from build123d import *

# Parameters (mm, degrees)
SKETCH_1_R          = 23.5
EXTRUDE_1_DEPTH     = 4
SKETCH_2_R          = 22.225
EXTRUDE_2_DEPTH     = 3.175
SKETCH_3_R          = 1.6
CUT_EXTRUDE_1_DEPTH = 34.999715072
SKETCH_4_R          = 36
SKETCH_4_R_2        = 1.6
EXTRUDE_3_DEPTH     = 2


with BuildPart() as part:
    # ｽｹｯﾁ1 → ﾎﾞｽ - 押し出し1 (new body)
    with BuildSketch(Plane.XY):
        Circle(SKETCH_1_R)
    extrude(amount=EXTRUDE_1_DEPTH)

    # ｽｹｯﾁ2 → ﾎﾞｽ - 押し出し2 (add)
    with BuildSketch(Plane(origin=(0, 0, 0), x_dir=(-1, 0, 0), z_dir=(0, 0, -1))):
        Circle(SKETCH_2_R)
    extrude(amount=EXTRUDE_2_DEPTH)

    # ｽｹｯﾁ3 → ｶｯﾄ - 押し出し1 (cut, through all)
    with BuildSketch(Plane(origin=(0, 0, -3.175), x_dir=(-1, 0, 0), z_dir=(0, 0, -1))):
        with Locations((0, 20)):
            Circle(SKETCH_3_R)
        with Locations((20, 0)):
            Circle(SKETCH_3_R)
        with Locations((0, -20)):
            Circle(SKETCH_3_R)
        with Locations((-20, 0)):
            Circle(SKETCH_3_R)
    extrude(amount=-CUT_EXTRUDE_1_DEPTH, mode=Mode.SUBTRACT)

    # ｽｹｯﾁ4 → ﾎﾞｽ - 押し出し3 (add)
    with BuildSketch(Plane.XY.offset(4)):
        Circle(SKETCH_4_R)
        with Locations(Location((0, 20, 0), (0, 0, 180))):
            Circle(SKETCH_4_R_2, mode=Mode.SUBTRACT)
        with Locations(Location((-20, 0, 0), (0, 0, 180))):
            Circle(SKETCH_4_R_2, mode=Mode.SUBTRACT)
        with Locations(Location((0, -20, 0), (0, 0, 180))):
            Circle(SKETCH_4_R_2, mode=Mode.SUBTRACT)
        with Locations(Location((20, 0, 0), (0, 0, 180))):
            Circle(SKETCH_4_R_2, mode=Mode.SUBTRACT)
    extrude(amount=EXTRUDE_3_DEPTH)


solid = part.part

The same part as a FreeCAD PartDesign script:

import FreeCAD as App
import Part
import Sketcher
from FreeCAD import Vector

doc = App.newDocument("Part")
body = doc.addObject("PartDesign::Body", "Body")

# Sketch on XY plane
sketch1 = doc.addObject("Sketcher::SketchObject", "Sketch")
body.addObject(sketch1)
sketch1.AttachmentSupport = (doc.XY_Plane, [""])
sketch1.MapMode = "FlatFace"
sketch1.addGeometry(Part.Circle(Vector(0, 0, 0), Vector(0, 0, 1), 24), False)
sketch1.addConstraint([
    Sketcher.Constraint("Coincident", 0, 3, -1, 1),
    Sketcher.Constraint("Diameter", 0, 47.0),
])
pad1 = doc.addObject("PartDesign::Pad", "Pad")
body.addObject(pad1)
pad1.Profile = sketch1
pad1.Length = 4

# Sketch on XY plane
sketch2 = doc.addObject("Sketcher::SketchObject", "Sketch001")
body.addObject(sketch2)
sketch2.AttachmentSupport = (doc.XY_Plane, [""])
sketch2.MapMode = "FlatFace"
sketch2.addGeometry(Part.Circle(Vector(0, 0, 0), Vector(0, 0, 1), 22), False)
sketch2.addConstraint([
    Sketcher.Constraint("Coincident", 0, 3, -1, 1),
    Sketcher.Constraint("Diameter", 0, 44.45),
])
pad2 = doc.addObject("PartDesign::Pad", "Pad001")
body.addObject(pad2)
pad2.Profile = sketch2
pad2.Length = 3.175
pad2.Reversed = True

# Sketch on XY plane
sketch3 = doc.addObject("Sketcher::SketchObject", "Sketch002")
body.addObject(sketch3)
sketch3.AttachmentSupport = (doc.XY_Plane, [""])
sketch3.MapMode = "FlatFace"
sketch3.AttachmentOffset = App.Placement(Vector(0, 0, -3.175), App.Rotation())
sketch3.addGeometry([
    Part.Circle(Vector(0, 20, 0), Vector(0, 0, 1), 1.6),
    Part.Circle(Vector(-20, 0, 0), Vector(0, 0, 1), 1.6),
    Part.Circle(Vector(0, -20, 0), Vector(0, 0, 1), 1.6),
    Part.Circle(Vector(20, 0, 0), Vector(0, 0, 1), 1.6),
], False)
sketch3.addConstraint([
    Sketcher.Constraint("Equal", 0, 1),
    Sketcher.Constraint("Equal", 1, 2),
    Sketcher.Constraint("Equal", 2, 3),
    Sketcher.Constraint("Symmetric", 0, 3, 2, 3, -1, 1),
    Sketcher.Constraint("Symmetric", 1, 3, 3, 3, -1, 1),
    Sketcher.Constraint("PointOnObject", 0, 3, -2),
    Sketcher.Constraint("PointOnObject", 1, 3, -1),
    Sketcher.Constraint("Diameter", 0, 3.2),
    Sketcher.Constraint("DistanceY", -1, 1, 0, 3, 20.0),
    Sketcher.Constraint("DistanceX", 1, 3, -1, 1, 20.0),
])
pocket1 = doc.addObject("PartDesign::Pocket", "Pocket")
body.addObject(pocket1)
pocket1.Profile = sketch3
pocket1.Type = "ThroughAll"
pocket1.Reversed = True

# Sketch on XY plane
sketch4 = doc.addObject("Sketcher::SketchObject", "Sketch003")
body.addObject(sketch4)
sketch4.AttachmentSupport = (doc.XY_Plane, [""])
sketch4.MapMode = "FlatFace"
sketch4.AttachmentOffset = App.Placement(Vector(0, 0, 4), App.Rotation())
sketch4.addGeometry([
    Part.Circle(Vector(0, 0, 0), Vector(0, 0, 1), 36),  # 0
    Part.Circle(Vector(0, -20, 0), Vector(0, 0, 1), 1.6),  # 1
    Part.Circle(Vector(-20, 0, 0), Vector(0, 0, 1), 1.6),  # 2
    Part.Circle(Vector(20, 0, 0), Vector(0, 0, 1), 1.6),  # 3
    Part.Circle(Vector(0, 20, 0), Vector(0, 0, 1), 1.6),  # 4
], False)
sketch4.addConstraint([
    Sketcher.Constraint("Coincident", 0, 3, -1, 1),
    Sketcher.Constraint("Equal", 1, 2),
    Sketcher.Constraint("Equal", 2, 3),
    Sketcher.Constraint("Equal", 3, 4),
    Sketcher.Constraint("Symmetric", 2, 3, 3, 3, -1, 1),
    Sketcher.Constraint("Symmetric", 1, 3, 4, 3, -1, 1),
    Sketcher.Constraint("PointOnObject", 1, 3, -2),
    Sketcher.Constraint("PointOnObject", 2, 3, -1),
    Sketcher.Constraint("Diameter", 0, 72.0),
    Sketcher.Constraint("Diameter", 1, 3.2),
    Sketcher.Constraint("DistanceY", 1, 3, -1, 1, 20.0),
    Sketcher.Constraint("DistanceX", 2, 3, -1, 1, 20.0),
])
pad3 = doc.addObject("PartDesign::Pad", "Pad002")
body.addObject(pad3)
pad3.Profile = sketch4
pad3.Length = 2

doc.recompute()
